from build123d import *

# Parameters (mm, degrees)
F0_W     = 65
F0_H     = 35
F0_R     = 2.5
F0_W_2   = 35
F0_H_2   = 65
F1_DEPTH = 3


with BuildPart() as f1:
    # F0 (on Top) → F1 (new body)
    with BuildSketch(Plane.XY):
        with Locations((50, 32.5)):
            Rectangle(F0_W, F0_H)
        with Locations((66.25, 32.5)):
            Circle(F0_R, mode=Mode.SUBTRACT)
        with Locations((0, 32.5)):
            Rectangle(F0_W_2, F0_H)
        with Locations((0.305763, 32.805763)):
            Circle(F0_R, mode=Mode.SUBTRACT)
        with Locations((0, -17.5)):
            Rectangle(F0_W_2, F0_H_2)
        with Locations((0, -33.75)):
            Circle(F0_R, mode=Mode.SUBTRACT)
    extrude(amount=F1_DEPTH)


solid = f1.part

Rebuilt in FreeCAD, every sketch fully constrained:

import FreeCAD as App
import Part
import Sketcher
from FreeCAD import Vector
Q = App.Units.Quantity

doc = App.newDocument("Part")
body = doc.addObject("PartDesign::Body", "Body")

# Sketch on XY plane
sketch1 = body.newObject("Sketcher::SketchObject", "Sketch")
sketch1.AttachmentSupport = (doc.getObject("XY_Plane"), [""])
sketch1.MapMode = "FlatFace"
sketch1.addGeometry([
    Part.LineSegment(Vector(82.5, 15, 0), Vector(82.5, 50, 0)),  # 0
    Part.LineSegment(Vector(82.5, 50, 0), Vector(-17.5, 50, 0)),  # 1
    Part.LineSegment(Vector(-17.5, 50, 0), Vector(-17.5, -50, 0)),  # 2
    Part.LineSegment(Vector(-17.5, -50, 0), Vector(17.5, -50, 0)),  # 3
    Part.LineSegment(Vector(17.5, -50, 0), Vector(17.5, 15, 0)),  # 4
    Part.LineSegment(Vector(17.5, 15, 0), Vector(82.5, 15, 0)),  # 5
    Part.Circle(Vector(0, -33.75, 0), Vector(0, 0, 1), 2.5),  # 6
    Part.Circle(Vector(0.305763, 32.805763, 0), Vector(0, 0, 1), 2.5),  # 7
    Part.Circle(Vector(66.25, 32.5, 0), Vector(0, 0, 1), 2.5),  # 8
], False)
sketch1.addConstraint([
    Sketcher.Constraint("Coincident", 0, 2, 1, 1),
    Sketcher.Constraint("Coincident", 1, 2, 2, 1),
    Sketcher.Constraint("Coincident", 2, 2, 3, 1),
    Sketcher.Constraint("Coincident", 3, 2, 4, 1),
    Sketcher.Constraint("Coincident", 4, 2, 5, 1),
    Sketcher.Constraint("Coincident", 5, 2, 0, 1),
    Sketcher.Constraint("Vertical", 0),
    Sketcher.Constraint("Horizontal", 1),
    Sketcher.Constraint("Vertical", 2),
    Sketcher.Constraint("Horizontal", 3),
    Sketcher.Constraint("Vertical", 4),
    Sketcher.Constraint("Horizontal", 5),
    Sketcher.Constraint("Equal", 6, 7),
    Sketcher.Constraint("Equal", 7, 8),
    Sketcher.Constraint("Symmetric", 1, 2, 3, 2, -1, 1),
    Sketcher.Constraint("PointOnObject", 6, 3, -2),
    Sketcher.Constraint("Equal", 3, 0),
    Sketcher.Constraint("Equal", 1, 2),
    Sketcher.Constraint("Diameter", 6, Q("5 mm")),
    Sketcher.Constraint("DistanceX", 1, 2, 1, 1, Q("100 mm")),
    Sketcher.Constraint("DistanceX", 3, 1, 3, 2, Q("35 mm")),
    Sketcher.Constraint("DistanceY", -1, 1, 8, 3, Q("32.5 mm")),
    Sketcher.Constraint("DistanceY", 6, 3, -1, 1, Q("33.75 mm")),
    Sketcher.Constraint("DistanceX", -1, 1, 8, 3, Q("66.25 mm")),
    Sketcher.Constraint("DistanceX", -1, 1, 7, 3, Q("0.305763 mm")),
    Sketcher.Constraint("DistanceY", -1, 1, 7, 3, Q("32.805763 mm")),
])
pad1 = body.newObject("PartDesign::Pad", "Pad")
pad1.Profile = sketch1
pad1.Length = 3

doc.recompute()
